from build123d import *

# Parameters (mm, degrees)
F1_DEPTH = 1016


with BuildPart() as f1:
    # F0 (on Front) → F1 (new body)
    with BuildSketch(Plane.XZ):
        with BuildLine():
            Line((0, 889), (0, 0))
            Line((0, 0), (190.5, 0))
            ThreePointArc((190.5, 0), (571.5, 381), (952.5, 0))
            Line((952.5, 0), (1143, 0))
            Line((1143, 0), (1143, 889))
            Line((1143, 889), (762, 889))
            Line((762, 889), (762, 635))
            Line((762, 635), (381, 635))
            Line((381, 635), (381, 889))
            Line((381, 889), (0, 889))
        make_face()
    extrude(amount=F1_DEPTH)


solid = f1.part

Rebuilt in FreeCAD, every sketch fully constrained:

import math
import FreeCAD as App
import Part
import Sketcher
Q = App.Units.Quantity

doc = App.newDocument("Part")
body = doc.addObject("PartDesign::Body", "Body")

# Sketch on XZ plane
sketch1 = body.newObject("Sketcher::SketchObject", "Sketch")
sketch1.AttachmentSupport = (doc.getObject("XZ_Plane"), [""])
sketch1.MapMode = "FlatFace"
sketch1.addGeometry(Part.LineSegment(App.Vector(0, 889, 0), App.Vector(0, 0, 0)), False)
sketch1.addGeometry(Part.LineSegment(App.Vector(0, 0, 0), App.Vector(190, 0, 0)), False)
sketch1.addGeometry(Part.ArcOfCircle(Part.Circle(App.Vector(572, 0, 0), App.Vector(0, 0, 1), 381), math.radians(0), math.radians(180)), False)
sketch1.addGeometry(Part.LineSegment(App.Vector(952, 0, 0), App.Vector(1143, 0, 0)), False)
sketch1.addGeometry(Part.LineSegment(App.Vector(1143, 0, 0), App.Vector(1143, 889, 0)), False)
sketch1.addGeometry(Part.LineSegment(App.Vector(1143, 889, 0), App.Vector(762, 889, 0)), False)
sketch1.addGeometry(Part.LineSegment(App.Vector(762, 889, 0), App.Vector(762, 635, 0)), False)
sketch1.addGeometry(Part.LineSegment(App.Vector(762, 635, 0), App.Vector(381, 635, 0)), False)
sketch1.addGeometry(Part.LineSegment(App.Vector(381, 635, 0), App.Vector(381, 889, 0)), False)
sketch1.addGeometry(Part.LineSegment(App.Vector(381, 889, 0), App.Vector(0, 889, 0)), False)
sketch1.addConstraint(Sketcher.Constraint("Coincident", 0, 2, 1, 1))
sketch1.addConstraint(Sketcher.Constraint("Coincident", 1, 2, 2, 2))
sketch1.addConstraint(Sketcher.Constraint("Coincident", 2, 1, 3, 1))
sketch1.addConstraint(Sketcher.Constraint("Coincident", 3, 2, 4, 1))
sketch1.addConstraint(Sketcher.Constraint("Coincident", 4, 2, 5, 1))
sketch1.addConstraint(Sketcher.Constraint("Coincident", 5, 2, 6, 1))
sketch1.addConstraint(Sketcher.Constraint("Coincident", 6, 2, 7, 1))
sketch1.addConstraint(Sketcher.Constraint("Coincident", 7, 2, 8, 1))
sketch1.addConstraint(Sketcher.Constraint("Coincident", 8, 2, 9, 1))
sketch1.addConstraint(Sketcher.Constraint("Coincident", 9, 2, 0, 1))
sketch1.addConstraint(Sketcher.Constraint("Vertical", 0))
sketch1.addConstraint(Sketcher.Constraint("Horizontal", 1))
sketch1.addConstraint(Sketcher.Constraint("Horizontal", 3))
sketch1.addConstraint(Sketcher.Constraint("Vertical", 4))
sketch1.addConstraint(Sketcher.Constraint("Horizontal", 5))
sketch1.addConstraint(Sketcher.Constraint("Vertical", 6))
sketch1.addConstraint(Sketcher.Constraint("Horizontal", 7))
sketch1.addConstraint(Sketcher.Constraint("Vertical", 8))
sketch1.addConstraint(Sketcher.Constraint("Horizontal", 9))
sketch1.addConstraint(Sketcher.Constraint("Coincident", 0, 2, -1, 1))
sketch1.addConstraint(Sketcher.Constraint("PointOnObject", 2, 3, -1))
sketch1.addConstraint(Sketcher.Constraint("PointOnObject", 3, 2, -1))
sketch1.addConstraint(Sketcher.Constraint("Horizontal", 5, 2, 8, 2))
sketch1.addConstraint(Sketcher.Constraint("Equal", 1, 3))
sketch1.addConstraint(Sketcher.Constraint("Equal", 5, 7))
sketch1.addConstraint(Sketcher.Constraint("Equal", 7, 9))
sketch1.addConstraint(Sketcher.Constraint("Radius", 2, Q("15 in")))
sketch1.addConstraint(Sketcher.Constraint("DistanceX", 5, 2, 5, 1, Q("15 in")))
sketch1.addConstraint(Sketcher.Constraint("DistanceY", 0, 2, 0, 1, Q("35 in")))
sketch1.addConstraint(Sketcher.Constraint("DistanceY", 6, 2, 6, 1, Q("10 in")))
pad1 = body.newObject("PartDesign::Pad", "Pad")
pad1.Profile = sketch1
pad1.Length = Q("40 in")

doc.recompute()
